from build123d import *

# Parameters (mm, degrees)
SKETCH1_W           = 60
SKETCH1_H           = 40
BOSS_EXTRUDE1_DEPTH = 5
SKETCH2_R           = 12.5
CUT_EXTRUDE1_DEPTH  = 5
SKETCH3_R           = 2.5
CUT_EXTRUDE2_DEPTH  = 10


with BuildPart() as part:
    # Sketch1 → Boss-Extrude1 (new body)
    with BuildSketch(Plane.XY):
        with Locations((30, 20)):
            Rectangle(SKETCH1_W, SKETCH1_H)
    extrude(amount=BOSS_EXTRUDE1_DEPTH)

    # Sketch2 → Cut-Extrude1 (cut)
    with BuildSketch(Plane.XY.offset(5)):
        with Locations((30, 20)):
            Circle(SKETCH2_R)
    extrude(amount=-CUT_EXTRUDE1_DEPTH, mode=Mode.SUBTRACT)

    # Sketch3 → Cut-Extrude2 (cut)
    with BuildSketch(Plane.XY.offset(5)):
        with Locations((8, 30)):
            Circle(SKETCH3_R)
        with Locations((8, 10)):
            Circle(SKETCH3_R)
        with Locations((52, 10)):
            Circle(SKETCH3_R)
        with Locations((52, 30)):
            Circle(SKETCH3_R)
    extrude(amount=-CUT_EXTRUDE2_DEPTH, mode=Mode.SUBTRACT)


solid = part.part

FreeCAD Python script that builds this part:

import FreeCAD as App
import Part
import Sketcher

V = App.Vector

doc = App.newDocument("Part")
body = doc.addObject("PartDesign::Body", "Body")

sketch1 = body.newObject("Sketcher::SketchObject", "Sketch")
sketch1.AttachmentSupport = (doc.getObject("XY_Plane"), [""])
sketch1.MapMode = "FlatFace"
sketch1.addGeometry(Part.LineSegment(V(0, 40, 0), V(0, 0, 0)), False)
sketch1.addGeometry(Part.LineSegment(V(0, 0, 0), V(60, 0, 0)), False)
sketch1.addGeometry(Part.LineSegment(V(60, 0, 0), V(60, 40, 0)), False)
sketch1.addGeometry(Part.LineSegment(V(60, 40, 0), V(0, 40, 0)), False)
sketch1.addConstraint(Sketcher.Constraint("Coincident", 0, 2, 1, 1))
sketch1.addConstraint(Sketcher.Constraint("Coincident", 1, 2, 2, 1))
sketch1.addConstraint(Sketcher.Constraint("Coincident", 2, 2, 3, 1))
sketch1.addConstraint(Sketcher.Constraint("Coincident", 3, 2, 0, 1))
sketch1.addConstraint(Sketcher.Constraint("Vertical", 0))
sketch1.addConstraint(Sketcher.Constraint("Horizontal", 1))
sketch1.addConstraint(Sketcher.Constraint("Vertical", 2))
sketch1.addConstraint(Sketcher.Constraint("Horizontal", 3))
sketch1.addConstraint(Sketcher.Constraint("Coincident", 0, 2, -1, 1))
sketch1.addConstraint(Sketcher.Constraint("DistanceX", 1, 1, 1, 2, 60.0))
sketch1.addConstraint(Sketcher.Constraint("DistanceY", 0, 2, 0, 1, 40.0))
pad1 = body.newObject("PartDesign::Pad", "Pad")
pad1.Profile = sketch1
pad1.Length = 5

sketch2 = body.newObject("Sketcher::SketchObject", "Sketch001")
sketch2.AttachmentSupport = (doc.getObject("XY_Plane"), [""])
sketch2.MapMode = "FlatFace"
sketch2.AttachmentOffset = App.Placement(V(0, 0, 5), App.Rotation())
sketch2.addGeometry(Part.Circle(V(30, 20, 0), V(0, 0, 1), 12), False)
sketch2.addConstraint(Sketcher.Constraint("Diameter", 0, 25.0))
sketch2.addConstraint(Sketcher.Constraint("DistanceX", -1, 1, 0, 3, 30.0))
sketch2.addConstraint(Sketcher.Constraint("DistanceY", -1, 1, 0, 3, 20.0))
pocket1 = body.newObject("PartDesign::Pocket", "Pocket")
pocket1.Profile = sketch2
pocket1.Length = 5

sketch3 = body.newObject("Sketcher::SketchObject", "Sketch002")
sketch3.AttachmentSupport = (doc.getObject("XY_Plane"), [""])
sketch3.MapMode = "FlatFace"
sketch3.AttachmentOffset = App.Placement(V(0, 0, 5), App.Rotation())
sketch3.addGeometry(Part.Circle(V(8, 30, 0), V(0, 0, 1), 2.5), False)
sketch3.addGeometry(Part.Circle(V(8, 10, 0), V(0, 0, 1), 2.5), False)
sketch3.addGeometry(Part.Circle(V(52, 10, 0), V(0, 0, 1), 2.5), False)
sketch3.addGeometry(Part.Circle(V(52, 30, 0), V(0, 0, 1), 2.5), False)
sketch3.addConstraint(Sketcher.Constraint("Equal", 0, 1))
sketch3.addConstraint(Sketcher.Constraint("Equal", 1, 2))
sketch3.addConstraint(Sketcher.Constraint("Equal", 2, 3))
sketch3.addConstraint(Sketcher.Constraint("Horizontal", 1, 3, 2, 3))
sketch3.addConstraint(Sketcher.Constraint("Horizontal", 0, 3, 3, 3))
sketch3.addConstraint(Sketcher.Constraint("Vertical", 0, 3, 1, 3))
sketch3.addConstraint(Sketcher.Constraint("Vertical", 2, 3, 3, 3))
sketch3.addConstraint(Sketcher.Constraint("Diameter", 0, 5.0))
sketch3.addConstraint(Sketcher.Constraint("DistanceX", -1, 1, 0, 3, 8.0))
sketch3.addConstraint(Sketcher.Constraint("DistanceY", -1, 1, 0, 3, 30.0))
sketch3.addConstraint(Sketcher.Constraint("DistanceY", -1, 1, 1, 3, 10.0))
sketch3.addConstraint(Sketcher.Constraint("DistanceX", -1, 1, 2, 3, 52.0))
pocket2 = body.newObject("PartDesign::Pocket", "Pocket001")
pocket2.Profile = sketch3
pocket2.Length = 10

doc.recompute()
